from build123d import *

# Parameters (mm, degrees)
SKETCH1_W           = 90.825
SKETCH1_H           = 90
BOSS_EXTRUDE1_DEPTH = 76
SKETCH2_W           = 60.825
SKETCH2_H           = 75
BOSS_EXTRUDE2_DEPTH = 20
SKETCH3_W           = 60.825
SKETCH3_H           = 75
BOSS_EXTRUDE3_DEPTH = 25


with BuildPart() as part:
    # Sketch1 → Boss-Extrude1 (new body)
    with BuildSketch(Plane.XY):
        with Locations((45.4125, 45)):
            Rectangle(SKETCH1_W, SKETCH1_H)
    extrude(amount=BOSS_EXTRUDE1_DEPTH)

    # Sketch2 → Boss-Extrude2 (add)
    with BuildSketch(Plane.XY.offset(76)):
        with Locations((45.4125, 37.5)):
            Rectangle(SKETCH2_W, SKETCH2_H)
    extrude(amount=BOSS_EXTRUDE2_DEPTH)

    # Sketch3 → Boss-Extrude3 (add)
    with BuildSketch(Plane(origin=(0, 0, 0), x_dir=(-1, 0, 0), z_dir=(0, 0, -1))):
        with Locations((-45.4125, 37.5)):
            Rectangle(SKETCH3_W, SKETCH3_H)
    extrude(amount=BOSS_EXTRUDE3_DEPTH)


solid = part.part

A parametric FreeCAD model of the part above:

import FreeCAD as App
import Part
import Sketcher


def add_polygon(sketch, points):
    """Adds a closed chain of lines whose ends are joined by coincident constraints."""
    first, n = sketch.GeometryCount, len(points)
    for a, b in zip(points, points[1:] + points[:1]):
        sketch.addGeometry(Part.LineSegment(App.Vector(*a, 0), App.Vector(*b, 0)), False)
    for i in range(n):
        sketch.addConstraint(Sketcher.Constraint("Coincident", first + i, 2, first + (i + 1) % n, 1))

doc = App.newDocument("Part")
body = doc.addObject("PartDesign::Body", "Body")

sketch1 = body.newObject("Sketcher::SketchObject", "Sketch")
sketch1.AttachmentSupport = (doc.getObject("XY_Plane"), [""])
sketch1.MapMode = "FlatFace"
add_polygon(sketch1, [(0, 90), (0, 0), (90.825, 0), (90.825, 90)])
sketch1.addConstraint([
    Sketcher.Constraint("Vertical", 0),
    Sketcher.Constraint("Horizontal", 1),
    Sketcher.Constraint("Vertical", 2),
    Sketcher.Constraint("Horizontal", 3),
    Sketcher.Constraint("Coincident", 0, 2, -1, 1),
    Sketcher.Constraint("DistanceY", 0, 2, 0, 1, 90.0),
    Sketcher.Constraint("DistanceX", 1, 1, 1, 2, 90.825),
])
pad1 = body.newObject("PartDesign::Pad", "Pad")
pad1.Profile = sketch1
pad1.Length = 76

sketch2 = body.newObject("Sketcher::SketchObject", "Sketch001")
sketch2.AttachmentSupport = (doc.getObject("XY_Plane"), [""])
sketch2.MapMode = "FlatFace"
sketch2.AttachmentOffset = App.Placement(App.Vector(0, 0, 76), App.Rotation())
add_polygon(sketch2, [(15, 75), (15, 0), (75.825, 0), (75.825, 75)])
sketch2.addConstraint([
    Sketcher.Constraint("Vertical", 0),
    Sketcher.Constraint("Horizontal", 1),
    Sketcher.Constraint("Vertical", 2),
    Sketcher.Constraint("Horizontal", 3),
    Sketcher.Constraint("PointOnObject", 0, 2, -1),
    Sketcher.Constraint("DistanceY", 0, 2, 0, 1, 75.0),
    Sketcher.Constraint("DistanceX", -1, 1, 0, 2, 15.0),
    Sketcher.Constraint("DistanceX", 1, 1, 1, 2, 60.825),
])
pad2 = body.newObject("PartDesign::Pad", "Pad001")
pad2.Profile = sketch2
pad2.Length = 20

sketch3 = body.newObject("Sketcher::SketchObject", "Sketch002")
sketch3.AttachmentSupport = (doc.getObject("XY_Plane"), [""])
sketch3.MapMode = "FlatFace"
add_polygon(sketch3, [(75.825, 75), (75.825, 0), (15, 0), (15, 75)])
sketch3.addConstraint([
    Sketcher.Constraint("Vertical", 0),
    Sketcher.Constraint("Horizontal", 1),
    Sketcher.Constraint("Vertical", 2),
    Sketcher.Constraint("Horizontal", 3),
    Sketcher.Constraint("PointOnObject", 0, 2, -1),
    Sketcher.Constraint("DistanceY", 0, 2, 0, 1, 75.0),
    Sketcher.Constraint("DistanceX", -1, 1, 1, 2, 15.0),
    Sketcher.Constraint("DistanceX", 1, 2, 1, 1, 60.825),
])
pad3 = body.newObject("PartDesign::Pad", "Pad002")
pad3.Profile = sketch3
pad3.Length = 25
pad3.Reversed = True

doc.recompute()
